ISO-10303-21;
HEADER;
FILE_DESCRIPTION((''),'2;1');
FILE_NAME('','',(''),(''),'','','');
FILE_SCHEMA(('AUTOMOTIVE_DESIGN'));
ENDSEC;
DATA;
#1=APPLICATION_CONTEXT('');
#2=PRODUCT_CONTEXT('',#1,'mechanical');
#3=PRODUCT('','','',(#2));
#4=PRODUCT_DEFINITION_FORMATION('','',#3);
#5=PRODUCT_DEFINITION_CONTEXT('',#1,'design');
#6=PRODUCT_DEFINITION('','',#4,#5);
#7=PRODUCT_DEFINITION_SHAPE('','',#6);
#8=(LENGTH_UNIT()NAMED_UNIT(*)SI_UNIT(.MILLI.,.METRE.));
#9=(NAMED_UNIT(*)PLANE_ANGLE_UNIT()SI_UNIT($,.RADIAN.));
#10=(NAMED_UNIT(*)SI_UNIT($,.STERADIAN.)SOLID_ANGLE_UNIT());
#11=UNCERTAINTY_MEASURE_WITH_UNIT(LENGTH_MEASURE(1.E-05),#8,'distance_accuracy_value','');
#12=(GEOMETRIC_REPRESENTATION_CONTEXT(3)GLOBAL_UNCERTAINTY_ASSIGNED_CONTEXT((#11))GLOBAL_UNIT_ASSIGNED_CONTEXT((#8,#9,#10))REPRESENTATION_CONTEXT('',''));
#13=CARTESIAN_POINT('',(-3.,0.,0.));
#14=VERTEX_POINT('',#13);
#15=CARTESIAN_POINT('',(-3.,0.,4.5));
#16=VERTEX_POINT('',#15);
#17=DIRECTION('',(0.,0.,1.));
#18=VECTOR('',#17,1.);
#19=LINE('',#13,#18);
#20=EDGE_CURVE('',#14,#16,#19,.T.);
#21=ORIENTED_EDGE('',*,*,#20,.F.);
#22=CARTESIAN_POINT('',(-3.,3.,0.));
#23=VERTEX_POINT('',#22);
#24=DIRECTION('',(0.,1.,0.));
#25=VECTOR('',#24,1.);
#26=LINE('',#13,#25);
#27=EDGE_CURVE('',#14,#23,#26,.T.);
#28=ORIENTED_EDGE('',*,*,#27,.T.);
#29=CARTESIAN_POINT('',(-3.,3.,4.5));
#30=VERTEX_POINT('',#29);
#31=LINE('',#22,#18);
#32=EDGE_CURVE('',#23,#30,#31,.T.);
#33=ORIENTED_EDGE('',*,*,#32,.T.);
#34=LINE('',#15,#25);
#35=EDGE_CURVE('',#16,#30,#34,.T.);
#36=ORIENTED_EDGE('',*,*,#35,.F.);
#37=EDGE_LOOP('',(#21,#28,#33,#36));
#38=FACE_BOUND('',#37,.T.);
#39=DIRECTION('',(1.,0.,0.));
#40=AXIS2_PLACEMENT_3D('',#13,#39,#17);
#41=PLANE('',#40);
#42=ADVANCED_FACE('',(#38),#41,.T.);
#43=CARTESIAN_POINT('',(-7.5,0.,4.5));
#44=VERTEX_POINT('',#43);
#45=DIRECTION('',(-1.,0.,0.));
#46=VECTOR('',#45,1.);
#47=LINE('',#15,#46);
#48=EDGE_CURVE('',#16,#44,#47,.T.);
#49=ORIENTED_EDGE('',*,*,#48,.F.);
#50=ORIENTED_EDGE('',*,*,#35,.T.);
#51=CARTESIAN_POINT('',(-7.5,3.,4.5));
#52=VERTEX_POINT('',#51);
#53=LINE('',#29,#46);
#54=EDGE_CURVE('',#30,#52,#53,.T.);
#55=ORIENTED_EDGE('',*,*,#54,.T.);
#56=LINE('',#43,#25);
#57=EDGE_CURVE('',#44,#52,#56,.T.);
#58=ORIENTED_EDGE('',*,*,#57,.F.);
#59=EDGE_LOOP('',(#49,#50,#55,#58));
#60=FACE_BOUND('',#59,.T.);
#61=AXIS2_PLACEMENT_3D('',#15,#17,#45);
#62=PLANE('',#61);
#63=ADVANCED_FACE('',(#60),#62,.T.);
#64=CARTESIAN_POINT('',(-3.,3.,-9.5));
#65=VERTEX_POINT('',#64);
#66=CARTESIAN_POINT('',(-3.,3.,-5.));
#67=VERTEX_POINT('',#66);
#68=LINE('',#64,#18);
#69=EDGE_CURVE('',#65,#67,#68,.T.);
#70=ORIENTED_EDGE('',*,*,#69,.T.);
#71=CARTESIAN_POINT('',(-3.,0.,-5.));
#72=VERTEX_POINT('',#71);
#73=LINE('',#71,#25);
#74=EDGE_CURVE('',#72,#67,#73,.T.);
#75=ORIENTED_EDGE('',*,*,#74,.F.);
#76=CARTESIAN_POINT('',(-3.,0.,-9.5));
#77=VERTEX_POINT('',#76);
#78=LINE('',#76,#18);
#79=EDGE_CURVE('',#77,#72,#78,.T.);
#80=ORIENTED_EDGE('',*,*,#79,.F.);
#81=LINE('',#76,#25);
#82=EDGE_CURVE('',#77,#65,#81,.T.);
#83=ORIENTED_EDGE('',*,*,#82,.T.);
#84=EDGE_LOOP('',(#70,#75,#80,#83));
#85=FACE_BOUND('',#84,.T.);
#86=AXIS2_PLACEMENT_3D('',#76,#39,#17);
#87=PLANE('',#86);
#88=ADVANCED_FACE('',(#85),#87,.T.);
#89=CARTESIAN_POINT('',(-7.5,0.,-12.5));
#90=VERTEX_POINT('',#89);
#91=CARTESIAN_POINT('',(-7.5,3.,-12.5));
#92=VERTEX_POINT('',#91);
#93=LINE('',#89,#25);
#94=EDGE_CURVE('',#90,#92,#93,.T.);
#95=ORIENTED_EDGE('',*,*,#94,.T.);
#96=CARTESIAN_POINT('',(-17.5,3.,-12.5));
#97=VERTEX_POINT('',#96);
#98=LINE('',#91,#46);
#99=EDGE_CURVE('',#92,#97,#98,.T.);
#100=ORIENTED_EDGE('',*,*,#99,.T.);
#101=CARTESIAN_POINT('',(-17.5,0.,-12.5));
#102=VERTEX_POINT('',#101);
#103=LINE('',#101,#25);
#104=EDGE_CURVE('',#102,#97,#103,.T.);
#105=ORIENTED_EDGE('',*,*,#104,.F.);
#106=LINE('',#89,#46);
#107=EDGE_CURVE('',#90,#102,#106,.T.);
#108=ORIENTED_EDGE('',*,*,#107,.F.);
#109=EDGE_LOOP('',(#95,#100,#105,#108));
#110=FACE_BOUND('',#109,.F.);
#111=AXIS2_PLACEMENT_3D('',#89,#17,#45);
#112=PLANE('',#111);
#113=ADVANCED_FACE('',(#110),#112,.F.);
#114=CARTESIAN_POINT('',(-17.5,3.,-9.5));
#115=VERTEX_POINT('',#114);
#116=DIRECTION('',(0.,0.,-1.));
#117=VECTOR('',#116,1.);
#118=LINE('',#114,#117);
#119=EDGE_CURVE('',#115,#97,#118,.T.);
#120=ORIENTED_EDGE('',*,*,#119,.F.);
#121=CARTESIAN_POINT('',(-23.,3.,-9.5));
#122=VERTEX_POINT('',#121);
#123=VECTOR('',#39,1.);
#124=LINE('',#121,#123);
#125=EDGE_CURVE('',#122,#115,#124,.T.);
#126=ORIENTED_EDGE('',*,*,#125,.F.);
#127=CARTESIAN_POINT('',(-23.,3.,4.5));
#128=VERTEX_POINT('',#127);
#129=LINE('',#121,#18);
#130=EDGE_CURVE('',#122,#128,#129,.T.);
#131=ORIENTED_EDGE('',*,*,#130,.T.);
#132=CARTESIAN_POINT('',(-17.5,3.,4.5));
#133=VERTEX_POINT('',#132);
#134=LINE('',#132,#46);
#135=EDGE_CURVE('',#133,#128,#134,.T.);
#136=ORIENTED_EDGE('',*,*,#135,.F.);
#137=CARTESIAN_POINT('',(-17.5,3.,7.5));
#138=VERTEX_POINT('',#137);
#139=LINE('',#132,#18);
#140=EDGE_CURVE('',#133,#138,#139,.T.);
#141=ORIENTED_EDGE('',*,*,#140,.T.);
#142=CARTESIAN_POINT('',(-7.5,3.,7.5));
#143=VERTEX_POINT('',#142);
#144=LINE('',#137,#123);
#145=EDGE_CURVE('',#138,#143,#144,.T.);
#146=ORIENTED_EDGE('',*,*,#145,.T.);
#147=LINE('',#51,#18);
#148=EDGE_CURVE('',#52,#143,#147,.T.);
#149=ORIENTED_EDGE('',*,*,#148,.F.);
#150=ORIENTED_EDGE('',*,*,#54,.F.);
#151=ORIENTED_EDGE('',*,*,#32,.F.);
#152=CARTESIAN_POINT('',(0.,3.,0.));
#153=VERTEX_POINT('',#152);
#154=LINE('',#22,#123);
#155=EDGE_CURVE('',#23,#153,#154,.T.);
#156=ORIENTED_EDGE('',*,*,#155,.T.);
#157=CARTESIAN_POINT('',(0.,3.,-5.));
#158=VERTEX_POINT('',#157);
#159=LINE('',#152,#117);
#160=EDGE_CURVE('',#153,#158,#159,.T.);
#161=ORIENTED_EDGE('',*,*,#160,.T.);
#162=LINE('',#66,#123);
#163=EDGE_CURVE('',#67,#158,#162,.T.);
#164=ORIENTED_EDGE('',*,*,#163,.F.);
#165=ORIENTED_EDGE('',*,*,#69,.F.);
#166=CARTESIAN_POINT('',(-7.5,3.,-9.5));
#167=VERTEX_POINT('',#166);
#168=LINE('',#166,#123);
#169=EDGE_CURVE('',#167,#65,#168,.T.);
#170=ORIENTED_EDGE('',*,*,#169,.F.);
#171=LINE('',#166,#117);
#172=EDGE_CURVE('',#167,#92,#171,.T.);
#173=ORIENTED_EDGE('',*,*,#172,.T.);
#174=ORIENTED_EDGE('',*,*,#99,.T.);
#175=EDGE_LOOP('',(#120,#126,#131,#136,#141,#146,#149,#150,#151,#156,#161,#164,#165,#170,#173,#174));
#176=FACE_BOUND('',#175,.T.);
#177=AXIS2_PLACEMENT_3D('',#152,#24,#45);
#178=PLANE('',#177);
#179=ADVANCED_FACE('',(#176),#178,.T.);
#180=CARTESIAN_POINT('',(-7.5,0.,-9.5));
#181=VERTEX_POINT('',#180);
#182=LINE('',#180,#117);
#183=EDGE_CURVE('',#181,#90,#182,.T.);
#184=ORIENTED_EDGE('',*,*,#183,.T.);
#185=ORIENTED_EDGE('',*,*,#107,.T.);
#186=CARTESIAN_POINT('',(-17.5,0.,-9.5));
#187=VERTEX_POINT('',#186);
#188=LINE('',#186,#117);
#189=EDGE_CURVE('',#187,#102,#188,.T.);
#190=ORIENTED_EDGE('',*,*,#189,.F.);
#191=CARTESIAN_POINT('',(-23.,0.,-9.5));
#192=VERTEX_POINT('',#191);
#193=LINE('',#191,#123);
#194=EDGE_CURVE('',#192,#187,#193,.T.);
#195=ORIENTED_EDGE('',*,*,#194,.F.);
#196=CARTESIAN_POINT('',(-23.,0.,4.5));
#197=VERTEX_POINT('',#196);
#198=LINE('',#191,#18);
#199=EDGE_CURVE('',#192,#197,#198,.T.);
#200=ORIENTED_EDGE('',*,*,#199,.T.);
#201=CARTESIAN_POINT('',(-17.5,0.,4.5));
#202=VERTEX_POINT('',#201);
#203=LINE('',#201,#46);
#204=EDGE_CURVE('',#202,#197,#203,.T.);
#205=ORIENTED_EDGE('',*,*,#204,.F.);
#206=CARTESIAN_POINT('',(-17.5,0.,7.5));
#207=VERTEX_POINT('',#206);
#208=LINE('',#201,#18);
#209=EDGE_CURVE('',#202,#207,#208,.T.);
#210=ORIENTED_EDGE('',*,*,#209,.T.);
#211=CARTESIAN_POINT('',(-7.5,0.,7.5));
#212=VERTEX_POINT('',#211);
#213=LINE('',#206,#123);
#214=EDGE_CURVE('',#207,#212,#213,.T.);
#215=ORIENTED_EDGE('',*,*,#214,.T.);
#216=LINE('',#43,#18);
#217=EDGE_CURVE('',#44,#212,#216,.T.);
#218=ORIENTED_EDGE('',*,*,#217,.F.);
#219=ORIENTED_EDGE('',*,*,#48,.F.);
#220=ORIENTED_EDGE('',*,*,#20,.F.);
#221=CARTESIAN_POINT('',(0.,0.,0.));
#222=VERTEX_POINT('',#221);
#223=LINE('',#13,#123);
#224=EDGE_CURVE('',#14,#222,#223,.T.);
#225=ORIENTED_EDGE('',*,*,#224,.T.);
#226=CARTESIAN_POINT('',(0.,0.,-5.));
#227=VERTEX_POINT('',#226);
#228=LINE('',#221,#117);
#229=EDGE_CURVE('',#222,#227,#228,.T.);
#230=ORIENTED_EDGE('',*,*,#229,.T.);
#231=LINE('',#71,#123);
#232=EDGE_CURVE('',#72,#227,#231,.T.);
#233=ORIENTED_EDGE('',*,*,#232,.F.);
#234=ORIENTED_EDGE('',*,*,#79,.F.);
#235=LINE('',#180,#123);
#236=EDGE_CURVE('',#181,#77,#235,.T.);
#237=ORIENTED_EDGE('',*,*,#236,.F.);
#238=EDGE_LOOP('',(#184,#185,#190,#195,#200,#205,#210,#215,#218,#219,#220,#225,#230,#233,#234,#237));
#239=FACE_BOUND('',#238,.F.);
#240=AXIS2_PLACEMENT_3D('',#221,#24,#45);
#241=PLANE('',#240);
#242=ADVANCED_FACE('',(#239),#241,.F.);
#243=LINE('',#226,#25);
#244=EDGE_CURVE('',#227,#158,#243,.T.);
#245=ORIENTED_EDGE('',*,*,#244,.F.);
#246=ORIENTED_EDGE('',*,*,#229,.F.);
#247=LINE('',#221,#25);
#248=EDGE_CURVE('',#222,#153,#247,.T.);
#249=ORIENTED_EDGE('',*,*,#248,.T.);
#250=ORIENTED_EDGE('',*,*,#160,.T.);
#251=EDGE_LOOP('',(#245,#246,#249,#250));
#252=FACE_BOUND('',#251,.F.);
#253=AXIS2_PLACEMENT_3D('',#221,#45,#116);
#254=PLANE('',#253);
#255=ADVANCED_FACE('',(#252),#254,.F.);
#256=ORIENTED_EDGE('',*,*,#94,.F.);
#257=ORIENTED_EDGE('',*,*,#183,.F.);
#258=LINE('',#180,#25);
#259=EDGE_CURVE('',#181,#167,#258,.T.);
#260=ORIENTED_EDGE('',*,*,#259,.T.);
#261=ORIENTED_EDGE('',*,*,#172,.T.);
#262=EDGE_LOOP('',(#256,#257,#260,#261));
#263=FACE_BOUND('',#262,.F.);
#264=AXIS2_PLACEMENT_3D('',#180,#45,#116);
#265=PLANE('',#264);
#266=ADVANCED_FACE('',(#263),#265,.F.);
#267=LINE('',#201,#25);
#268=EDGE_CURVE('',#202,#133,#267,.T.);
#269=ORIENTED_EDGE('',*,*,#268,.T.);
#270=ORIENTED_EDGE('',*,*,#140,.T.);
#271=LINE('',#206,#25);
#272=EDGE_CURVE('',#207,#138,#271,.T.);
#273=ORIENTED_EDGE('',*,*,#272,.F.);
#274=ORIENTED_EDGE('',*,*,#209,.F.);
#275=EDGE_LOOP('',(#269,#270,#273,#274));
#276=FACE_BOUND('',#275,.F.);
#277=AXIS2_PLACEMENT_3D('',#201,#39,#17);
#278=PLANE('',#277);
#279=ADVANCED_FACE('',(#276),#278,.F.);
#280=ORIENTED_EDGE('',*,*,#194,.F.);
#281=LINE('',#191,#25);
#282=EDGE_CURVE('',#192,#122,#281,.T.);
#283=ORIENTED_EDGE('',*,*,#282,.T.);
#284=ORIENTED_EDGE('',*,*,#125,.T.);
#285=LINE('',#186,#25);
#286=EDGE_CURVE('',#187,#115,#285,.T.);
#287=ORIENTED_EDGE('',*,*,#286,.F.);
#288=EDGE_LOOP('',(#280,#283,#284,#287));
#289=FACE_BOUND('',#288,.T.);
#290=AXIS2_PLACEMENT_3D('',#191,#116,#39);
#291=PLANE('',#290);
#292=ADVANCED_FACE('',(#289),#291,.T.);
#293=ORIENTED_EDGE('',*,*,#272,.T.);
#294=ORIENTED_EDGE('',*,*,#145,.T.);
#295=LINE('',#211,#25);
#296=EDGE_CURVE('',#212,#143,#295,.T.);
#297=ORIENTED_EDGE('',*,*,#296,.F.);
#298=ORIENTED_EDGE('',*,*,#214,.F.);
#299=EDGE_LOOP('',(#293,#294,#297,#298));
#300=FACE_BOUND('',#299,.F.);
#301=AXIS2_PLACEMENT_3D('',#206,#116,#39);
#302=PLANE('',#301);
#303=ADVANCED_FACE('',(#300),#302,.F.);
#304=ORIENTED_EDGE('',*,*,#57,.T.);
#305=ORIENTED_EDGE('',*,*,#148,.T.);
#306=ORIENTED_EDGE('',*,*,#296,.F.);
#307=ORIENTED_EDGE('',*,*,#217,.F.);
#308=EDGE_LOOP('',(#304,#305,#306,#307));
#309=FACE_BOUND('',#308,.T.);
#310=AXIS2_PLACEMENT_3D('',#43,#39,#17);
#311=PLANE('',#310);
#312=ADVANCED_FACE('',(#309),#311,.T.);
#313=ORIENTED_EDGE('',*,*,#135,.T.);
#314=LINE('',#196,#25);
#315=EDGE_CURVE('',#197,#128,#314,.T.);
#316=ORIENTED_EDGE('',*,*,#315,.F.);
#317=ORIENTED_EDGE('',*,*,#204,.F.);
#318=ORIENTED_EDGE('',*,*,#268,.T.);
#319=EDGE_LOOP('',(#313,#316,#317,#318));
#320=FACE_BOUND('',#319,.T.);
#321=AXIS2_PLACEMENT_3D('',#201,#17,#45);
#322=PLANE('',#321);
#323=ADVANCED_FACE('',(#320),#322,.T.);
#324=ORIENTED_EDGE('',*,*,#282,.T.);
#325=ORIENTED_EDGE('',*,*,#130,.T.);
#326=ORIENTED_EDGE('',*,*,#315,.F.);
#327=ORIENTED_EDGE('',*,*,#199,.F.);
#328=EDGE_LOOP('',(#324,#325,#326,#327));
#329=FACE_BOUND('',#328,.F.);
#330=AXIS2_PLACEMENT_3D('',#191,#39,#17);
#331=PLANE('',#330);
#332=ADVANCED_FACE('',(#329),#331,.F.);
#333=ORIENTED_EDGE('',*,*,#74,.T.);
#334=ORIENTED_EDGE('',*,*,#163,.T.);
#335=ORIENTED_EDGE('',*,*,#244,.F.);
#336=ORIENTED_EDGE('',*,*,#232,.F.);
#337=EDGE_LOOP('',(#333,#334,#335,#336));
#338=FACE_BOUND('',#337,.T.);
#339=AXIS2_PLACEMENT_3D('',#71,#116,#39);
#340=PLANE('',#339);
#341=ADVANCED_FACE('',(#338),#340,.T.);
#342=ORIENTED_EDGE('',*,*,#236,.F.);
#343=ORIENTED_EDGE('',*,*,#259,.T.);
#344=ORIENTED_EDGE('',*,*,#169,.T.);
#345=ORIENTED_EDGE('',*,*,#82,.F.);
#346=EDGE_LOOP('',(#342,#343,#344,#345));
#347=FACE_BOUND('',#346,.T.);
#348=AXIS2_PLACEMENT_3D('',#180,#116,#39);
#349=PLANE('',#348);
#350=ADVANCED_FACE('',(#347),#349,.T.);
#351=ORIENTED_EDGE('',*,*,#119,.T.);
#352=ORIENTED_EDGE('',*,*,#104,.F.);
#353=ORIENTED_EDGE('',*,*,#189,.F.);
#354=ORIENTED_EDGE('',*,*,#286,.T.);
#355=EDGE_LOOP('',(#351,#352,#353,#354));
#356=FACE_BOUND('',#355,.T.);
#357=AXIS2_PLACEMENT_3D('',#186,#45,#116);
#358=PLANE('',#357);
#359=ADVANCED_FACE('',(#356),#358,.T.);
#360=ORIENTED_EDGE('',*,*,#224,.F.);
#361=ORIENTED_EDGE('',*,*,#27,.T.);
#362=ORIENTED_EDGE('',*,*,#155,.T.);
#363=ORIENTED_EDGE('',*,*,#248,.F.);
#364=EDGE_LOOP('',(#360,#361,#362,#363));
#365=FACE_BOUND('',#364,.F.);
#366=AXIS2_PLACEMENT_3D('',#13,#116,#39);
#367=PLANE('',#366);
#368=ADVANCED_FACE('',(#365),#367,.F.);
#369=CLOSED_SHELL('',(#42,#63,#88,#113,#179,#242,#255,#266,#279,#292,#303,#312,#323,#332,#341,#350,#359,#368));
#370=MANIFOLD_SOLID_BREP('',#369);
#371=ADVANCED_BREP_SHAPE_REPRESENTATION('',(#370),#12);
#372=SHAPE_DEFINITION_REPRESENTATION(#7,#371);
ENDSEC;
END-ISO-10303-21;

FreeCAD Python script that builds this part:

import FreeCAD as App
import Part
import Sketcher

V = App.Vector


def add_polygon(sketch, points):
    """Adds a closed chain of lines whose ends are joined by coincident constraints."""
    first, n = sketch.GeometryCount, len(points)
    for a, b in zip(points, points[1:] + points[:1]):
        sketch.addGeometry(Part.LineSegment(App.Vector(*a, 0), App.Vector(*b, 0)), False)
    for i in range(n):
        sketch.addConstraint(Sketcher.Constraint("Coincident", first + i, 2, first + (i + 1) % n, 1))

doc = App.newDocument("Part")
body = doc.addObject("PartDesign::Body", "Body")

# Sketch on XZ plane
sketch1 = body.newObject("Sketcher::SketchObject", "Sketch")
sketch1.AttachmentSupport = (doc.getObject("XZ_Plane"), [""])
sketch1.MapMode = "FlatFace"
add_polygon(sketch1, [(-17.5, 4.5), (-17.5, 7.5), (-7.5, 7.5), (-7.5, 4.5), (-3, 4.5), (-3, 0), (0, 0), (0, -5), (-3, -5), (-3, -9.5), (-7.5, -9.5), (-7.5, -12.5), (-17.5, -12.5), (-17.5, -9.5), (-23, -9.5), (-23, 4.5)])  # lines 0-15
sketch1.addConstraint([
    Sketcher.Constraint("Vertical", 0),
    Sketcher.Constraint("Horizontal", 1),
    Sketcher.Constraint("Vertical", 2),
    Sketcher.Constraint("Horizontal", 3),
    Sketcher.Constraint("Vertical", 4),
    Sketcher.Constraint("Horizontal", 5),
    Sketcher.Constraint("Vertical", 6),
    Sketcher.Constraint("Horizontal", 7),
    Sketcher.Constraint("Vertical", 8),
    Sketcher.Constraint("Horizontal", 9),
    Sketcher.Constraint("Vertical", 10),
    Sketcher.Constraint("Horizontal", 11),
    Sketcher.Constraint("Vertical", 12),
    Sketcher.Constraint("Horizontal", 13),
    Sketcher.Constraint("Vertical", 14),
    Sketcher.Constraint("Horizontal", 15),
    Sketcher.Constraint("Coincident", 5, 2, -1, 1),
    Sketcher.Constraint("Horizontal", 9, 2, 12, 2),
    Sketcher.Constraint("Horizontal", 3, 2, 14, 2),
    Sketcher.Constraint("Vertical", 4, 2, 7, 2),
    Sketcher.Constraint("Vertical", 2, 2, 9, 2),
    Sketcher.Constraint("Vertical", 0, 2, 11, 2),
    Sketcher.Constraint("Equal", 7, 0),
    Sketcher.Constraint("Equal", 9, 4),
    Sketcher.Constraint("Equal", 4, 8),
    Sketcher.Constraint("Equal", 2, 10),
    Sketcher.Constraint("DistanceX", 1, 1, 1, 2, 10.0),
    Sketcher.Constraint("DistanceX", 5, 1, 5, 2, 3.0),
    Sketcher.Constraint("DistanceY", 6, 2, 6, 1, 5.0),
    Sketcher.Constraint("DistanceX", 13, 2, -1, 1, 23.0),
    Sketcher.Constraint("DistanceY", -1, 1, 0, 2, 7.5),
])
pad1 = body.newObject("PartDesign::Pad", "Pad")
pad1.Profile = sketch1
pad1.Length = 3
pad1.Reversed = True

doc.recompute()
